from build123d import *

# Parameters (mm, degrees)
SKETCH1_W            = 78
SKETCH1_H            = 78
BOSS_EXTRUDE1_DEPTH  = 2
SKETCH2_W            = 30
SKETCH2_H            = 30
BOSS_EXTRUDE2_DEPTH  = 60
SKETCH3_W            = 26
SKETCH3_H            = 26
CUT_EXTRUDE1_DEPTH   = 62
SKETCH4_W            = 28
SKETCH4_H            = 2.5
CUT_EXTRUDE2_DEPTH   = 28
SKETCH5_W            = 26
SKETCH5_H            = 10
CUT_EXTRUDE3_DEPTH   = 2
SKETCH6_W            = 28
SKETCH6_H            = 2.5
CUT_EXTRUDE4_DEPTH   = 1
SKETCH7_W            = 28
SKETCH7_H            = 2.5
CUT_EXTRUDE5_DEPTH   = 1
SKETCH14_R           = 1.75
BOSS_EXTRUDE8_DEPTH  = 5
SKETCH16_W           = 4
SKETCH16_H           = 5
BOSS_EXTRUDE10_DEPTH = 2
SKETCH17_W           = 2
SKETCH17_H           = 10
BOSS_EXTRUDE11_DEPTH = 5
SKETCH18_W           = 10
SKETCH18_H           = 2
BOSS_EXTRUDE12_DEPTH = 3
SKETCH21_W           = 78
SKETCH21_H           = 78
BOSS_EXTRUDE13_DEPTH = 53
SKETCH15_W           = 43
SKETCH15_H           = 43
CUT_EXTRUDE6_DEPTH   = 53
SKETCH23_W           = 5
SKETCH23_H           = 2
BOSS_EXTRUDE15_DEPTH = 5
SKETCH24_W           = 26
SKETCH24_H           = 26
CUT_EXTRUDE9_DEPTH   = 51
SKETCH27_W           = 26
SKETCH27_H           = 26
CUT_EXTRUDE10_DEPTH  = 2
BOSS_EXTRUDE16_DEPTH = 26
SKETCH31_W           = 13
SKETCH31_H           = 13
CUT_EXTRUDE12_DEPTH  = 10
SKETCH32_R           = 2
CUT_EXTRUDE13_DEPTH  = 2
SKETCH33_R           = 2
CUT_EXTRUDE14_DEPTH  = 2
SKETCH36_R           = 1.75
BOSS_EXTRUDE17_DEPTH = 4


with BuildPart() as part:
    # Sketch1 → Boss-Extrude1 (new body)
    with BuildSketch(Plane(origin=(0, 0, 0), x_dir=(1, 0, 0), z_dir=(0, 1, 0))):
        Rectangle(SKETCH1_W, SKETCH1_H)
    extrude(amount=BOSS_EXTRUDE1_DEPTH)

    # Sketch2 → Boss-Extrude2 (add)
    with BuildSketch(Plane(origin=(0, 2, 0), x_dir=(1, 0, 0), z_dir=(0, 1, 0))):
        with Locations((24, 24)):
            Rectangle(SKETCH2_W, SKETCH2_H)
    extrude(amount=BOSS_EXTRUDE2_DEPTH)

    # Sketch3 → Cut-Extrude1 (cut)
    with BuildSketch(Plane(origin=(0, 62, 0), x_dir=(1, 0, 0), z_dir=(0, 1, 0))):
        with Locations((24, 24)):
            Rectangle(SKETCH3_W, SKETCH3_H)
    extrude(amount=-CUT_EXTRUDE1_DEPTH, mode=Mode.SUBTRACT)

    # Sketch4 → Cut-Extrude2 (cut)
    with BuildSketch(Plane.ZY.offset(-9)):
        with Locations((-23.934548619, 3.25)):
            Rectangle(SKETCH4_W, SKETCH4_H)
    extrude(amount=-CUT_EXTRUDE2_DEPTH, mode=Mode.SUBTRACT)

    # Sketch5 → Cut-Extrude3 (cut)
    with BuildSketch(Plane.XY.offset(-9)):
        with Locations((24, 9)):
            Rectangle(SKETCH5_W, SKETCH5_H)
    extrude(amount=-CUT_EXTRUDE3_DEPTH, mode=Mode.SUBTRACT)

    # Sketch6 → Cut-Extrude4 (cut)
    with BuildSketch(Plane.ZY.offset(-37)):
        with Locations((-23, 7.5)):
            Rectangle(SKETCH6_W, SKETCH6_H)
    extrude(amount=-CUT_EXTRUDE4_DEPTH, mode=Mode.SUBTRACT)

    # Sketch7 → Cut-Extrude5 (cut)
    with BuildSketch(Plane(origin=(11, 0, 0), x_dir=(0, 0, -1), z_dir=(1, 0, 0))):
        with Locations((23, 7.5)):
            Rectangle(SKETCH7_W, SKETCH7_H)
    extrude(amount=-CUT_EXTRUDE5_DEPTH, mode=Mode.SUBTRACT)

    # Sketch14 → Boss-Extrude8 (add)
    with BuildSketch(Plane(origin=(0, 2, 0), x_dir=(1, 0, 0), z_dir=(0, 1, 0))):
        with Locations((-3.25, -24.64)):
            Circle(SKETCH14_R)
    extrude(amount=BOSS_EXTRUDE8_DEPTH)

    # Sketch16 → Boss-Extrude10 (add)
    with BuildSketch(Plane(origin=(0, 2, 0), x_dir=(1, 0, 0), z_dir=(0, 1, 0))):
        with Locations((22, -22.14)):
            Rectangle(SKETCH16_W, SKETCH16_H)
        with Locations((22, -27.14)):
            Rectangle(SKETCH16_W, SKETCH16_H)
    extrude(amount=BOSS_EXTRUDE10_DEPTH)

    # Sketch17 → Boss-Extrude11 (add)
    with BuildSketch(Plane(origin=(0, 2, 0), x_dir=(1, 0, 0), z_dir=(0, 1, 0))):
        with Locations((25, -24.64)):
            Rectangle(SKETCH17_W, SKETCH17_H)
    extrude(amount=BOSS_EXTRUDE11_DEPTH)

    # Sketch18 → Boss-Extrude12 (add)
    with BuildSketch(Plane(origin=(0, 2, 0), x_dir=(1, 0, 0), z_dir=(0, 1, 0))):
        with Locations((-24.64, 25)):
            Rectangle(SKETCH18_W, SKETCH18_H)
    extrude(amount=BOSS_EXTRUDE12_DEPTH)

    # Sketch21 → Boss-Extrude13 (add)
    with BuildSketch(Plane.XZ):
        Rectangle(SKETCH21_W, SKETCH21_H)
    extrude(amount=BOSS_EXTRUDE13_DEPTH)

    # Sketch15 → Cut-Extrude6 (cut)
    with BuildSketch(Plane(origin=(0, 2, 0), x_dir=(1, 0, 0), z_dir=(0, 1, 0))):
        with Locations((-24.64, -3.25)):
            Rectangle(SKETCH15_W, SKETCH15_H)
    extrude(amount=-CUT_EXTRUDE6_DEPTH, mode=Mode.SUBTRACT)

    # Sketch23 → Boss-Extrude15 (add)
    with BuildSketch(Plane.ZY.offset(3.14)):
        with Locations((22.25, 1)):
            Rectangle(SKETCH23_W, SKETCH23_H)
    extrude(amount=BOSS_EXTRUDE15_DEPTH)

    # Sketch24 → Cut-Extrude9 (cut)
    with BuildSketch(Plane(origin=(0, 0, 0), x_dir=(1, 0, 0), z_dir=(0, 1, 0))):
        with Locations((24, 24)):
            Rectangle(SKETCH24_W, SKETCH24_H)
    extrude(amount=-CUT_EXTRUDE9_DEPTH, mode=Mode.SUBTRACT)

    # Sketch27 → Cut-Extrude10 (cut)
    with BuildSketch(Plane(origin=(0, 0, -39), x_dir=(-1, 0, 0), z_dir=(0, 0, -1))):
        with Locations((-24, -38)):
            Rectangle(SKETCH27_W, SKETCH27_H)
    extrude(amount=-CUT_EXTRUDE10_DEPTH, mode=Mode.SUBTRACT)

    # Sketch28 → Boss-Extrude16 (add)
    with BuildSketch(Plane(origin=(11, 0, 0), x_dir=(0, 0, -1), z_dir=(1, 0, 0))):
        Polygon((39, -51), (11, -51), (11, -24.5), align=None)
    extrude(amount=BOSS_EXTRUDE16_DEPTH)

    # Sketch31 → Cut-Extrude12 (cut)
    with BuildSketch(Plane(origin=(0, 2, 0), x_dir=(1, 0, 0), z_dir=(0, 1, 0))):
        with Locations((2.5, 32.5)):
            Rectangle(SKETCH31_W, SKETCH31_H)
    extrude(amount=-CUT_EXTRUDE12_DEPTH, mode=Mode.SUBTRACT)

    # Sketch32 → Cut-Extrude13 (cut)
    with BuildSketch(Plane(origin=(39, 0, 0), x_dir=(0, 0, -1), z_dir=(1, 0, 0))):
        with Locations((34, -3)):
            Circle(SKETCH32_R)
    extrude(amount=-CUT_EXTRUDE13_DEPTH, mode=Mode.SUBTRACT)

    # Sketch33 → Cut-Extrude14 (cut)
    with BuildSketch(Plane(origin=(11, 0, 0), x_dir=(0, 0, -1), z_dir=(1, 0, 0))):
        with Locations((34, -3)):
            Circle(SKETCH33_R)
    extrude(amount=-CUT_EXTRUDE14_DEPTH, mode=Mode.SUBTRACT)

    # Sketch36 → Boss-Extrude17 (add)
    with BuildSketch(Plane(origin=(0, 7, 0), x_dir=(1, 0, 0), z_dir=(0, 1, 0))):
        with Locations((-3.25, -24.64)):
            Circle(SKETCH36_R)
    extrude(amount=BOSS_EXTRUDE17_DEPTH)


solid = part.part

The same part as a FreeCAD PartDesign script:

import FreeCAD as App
import Part
import Sketcher
Q = App.Units.Quantity


def add_polygon(sketch, points):
    """Adds a closed chain of lines whose ends are joined by coincident constraints."""
    first, n = sketch.GeometryCount, len(points)
    for a, b in zip(points, points[1:] + points[:1]):
        sketch.addGeometry(Part.LineSegment(App.Vector(*a, 0), App.Vector(*b, 0)), False)
    for i in range(n):
        sketch.addConstraint(Sketcher.Constraint("Coincident", first + i, 2, first + (i + 1) % n, 1))

doc = App.newDocument("Part")
body = doc.addObject("PartDesign::Body", "Body")

# Sketch on XZ plane
sketch1 = body.newObject("Sketcher::SketchObject", "Sketch")
sketch1.AttachmentSupport = (doc.getObject("XZ_Plane"), [""])
sketch1.MapMode = "FlatFace"
add_polygon(sketch1, [(-39, -39), (-39, 39), (39, 39), (39, -39)])  # lines 0-3
sketch1.addConstraint([
    Sketcher.Constraint("Vertical", 0),
    Sketcher.Constraint("Horizontal", 1),
    Sketcher.Constraint("Vertical", 2),
    Sketcher.Constraint("Horizontal", 3),
    Sketcher.Constraint("Symmetric", 0, 2, 2, 2, -1, 1),
    Sketcher.Constraint("Equal", 3, 0),
    Sketcher.Constraint("DistanceX", 1, 1, 1, 2, Q("78 mm")),
])
pad1 = body.newObject("PartDesign::Pad", "Pad")
pad1.Profile = sketch1
pad1.Length = 2
pad1.Reversed = True

# Sketch on XZ plane
sketch2 = body.newObject("Sketcher::SketchObject", "Sketch001")
sketch2.AttachmentSupport = (doc.getObject("XZ_Plane"), [""])
sketch2.MapMode = "FlatFace"
sketch2.AttachmentOffset = App.Placement(App.Vector(0, 0, -2), App.Rotation())
add_polygon(sketch2, [(9, -39), (9, -9), (39, -9), (39, -39)])  # lines 0-3
sketch2.addConstraint([
    Sketcher.Constraint("Vertical", 0),
    Sketcher.Constraint("Horizontal", 1),
    Sketcher.Constraint("Vertical", 2),
    Sketcher.Constraint("Horizontal", 3),
    Sketcher.Constraint("Equal", 3, 0),
    Sketcher.Constraint("DistanceX", 1, 1, 1, 2, Q("30 mm")),
    Sketcher.Constraint("DistanceX", -1, 1, 0, 2, Q("9 mm")),
    Sketcher.Constraint("DistanceY", 0, 2, -1, 1, Q("9 mm")),
])
pad2 = body.newObject("PartDesign::Pad", "Pad001")
pad2.Profile = sketch2
pad2.Length = 60
pad2.Reversed = True

# Sketch on XZ plane
sketch3 = body.newObject("Sketcher::SketchObject", "Sketch002")
sketch3.AttachmentSupport = (doc.getObject("XZ_Plane"), [""])
sketch3.MapMode = "FlatFace"
sketch3.AttachmentOffset = App.Placement(App.Vector(0, 0, -62), App.Rotation())
add_polygon(sketch3, [(11, -37), (11, -11), (37, -11), (37, -37)])  # lines 0-3
sketch3.addConstraint([
    Sketcher.Constraint("Vertical", 0),
    Sketcher.Constraint("Horizontal", 1),
    Sketcher.Constraint("Vertical", 2),
    Sketcher.Constraint("Horizontal", 3),
    Sketcher.Constraint("Equal", 3, 0),
    Sketcher.Constraint("DistanceX", 1, 1, 1, 2, Q("26 mm")),
    Sketcher.Constraint("DistanceX", -1, 1, 0, 2, Q("11 mm")),
    Sketcher.Constraint("DistanceY", 0, 2, -1, 1, Q("11 mm")),
])
pocket1 = body.newObject("PartDesign::Pocket", "Pocket")
pocket1.Profile = sketch3
pocket1.Length = 62
pocket1.Reversed = True

# Sketch on YZ plane
sketch4 = body.newObject("Sketcher::SketchObject", "Sketch003")
sketch4.AttachmentSupport = (doc.getObject("YZ_Plane"), [""])
sketch4.MapMode = "FlatFace"
sketch4.AttachmentOffset = App.Placement(App.Vector(0, 0, 9), App.Rotation())
add_polygon(sketch4, [(4.5, -37.934549), (2, -37.934549), (2, -9.934549), (4.5, -9.934549)])  # lines 0-3
sketch4.addConstraint([
    Sketcher.Constraint("Horizontal", 0),
    Sketcher.Constraint("Vertical", 1),
    Sketcher.Constraint("Horizontal", 2),
    Sketcher.Constraint("Vertical", 3),
    Sketcher.Constraint("DistanceY", 1, 1, 1, 2, Q("28 mm")),
    Sketcher.Constraint("DistanceX", 0, 2, 0, 1, Q("2.5 mm")),
    Sketcher.Constraint("DistanceX", -1, 1, 0, 2, Q("2 mm")),
    Sketcher.Constraint("DistanceY", 0, 2, -1, 1, Q("37.934549 mm")),
])
pocket2 = body.newObject("PartDesign::Pocket", "Pocket001")
pocket2.Profile = sketch4
pocket2.Length = 28
pocket2.Reversed = True

# Sketch on XY plane
sketch5 = body.newObject("Sketcher::SketchObject", "Sketch004")
sketch5.AttachmentSupport = (doc.getObject("XY_Plane"), [""])
sketch5.MapMode = "FlatFace"
sketch5.AttachmentOffset = App.Placement(App.Vector(0, 0, -9), App.Rotation())
add_polygon(sketch5, [(11, 14), (11, 4), (37, 4), (37, 14)])  # lines 0-3
sketch5.addConstraint([
    Sketcher.Constraint("Vertical", 0),
    Sketcher.Constraint("Horizontal", 1),
    Sketcher.Constraint("Vertical", 2),
    Sketcher.Constraint("Horizontal", 3),
    Sketcher.Constraint("DistanceX", 1, 1, 1, 2, Q("26 mm")),
    Sketcher.Constraint("DistanceY", 0, 2, 0, 1, Q("10 mm")),
    Sketcher.Constraint("DistanceX", -1, 1, 0, 2, Q("11 mm")),
    Sketcher.Constraint("DistanceY", -1, 1, 0, 2, Q("4 mm")),
])
pocket3 = body.newObject("PartDesign::Pocket", "Pocket002")
pocket3.Profile = sketch5
pocket3.Length = 2

# Sketch on YZ plane
sketch6 = body.newObject("Sketcher::SketchObject", "Sketch005")
sketch6.AttachmentSupport = (doc.getObject("YZ_Plane"), [""])
sketch6.MapMode = "FlatFace"
sketch6.AttachmentOffset = App.Placement(App.Vector(0, 0, 37), App.Rotation())
add_polygon(sketch6, [(8.75, -37), (6.25, -37), (6.25, -9), (8.75, -9)])  # lines 0-3
sketch6.addConstraint([
    Sketcher.Constraint("Horizontal", 0),
    Sketcher.Constraint("Vertical", 1),
    Sketcher.Constraint("Horizontal", 2),
    Sketcher.Constraint("Vertical", 3),
    Sketcher.Constraint("DistanceY", 1, 1, 1, 2, Q("28 mm")),
    Sketcher.Constraint("DistanceX", 0, 2, 0, 1, Q("2.5 mm")),
    Sketcher.Constraint("DistanceY", 0, 2, -1, 1, Q("37 mm")),
    Sketcher.Constraint("DistanceX", -1, 1, 0, 2, Q("6.25 mm")),
])
pocket4 = body.newObject("PartDesign::Pocket", "Pocket003")
pocket4.Profile = sketch6
pocket4.Length = 1
pocket4.Reversed = True

# Sketch on YZ plane
sketch7 = body.newObject("Sketcher::SketchObject", "Sketch006")
sketch7.AttachmentSupport = (doc.getObject("YZ_Plane"), [""])
sketch7.MapMode = "FlatFace"
sketch7.AttachmentOffset = App.Placement(App.Vector(0, 0, 11), App.Rotation())
add_polygon(sketch7, [(8.75, -9), (6.25, -9), (6.25, -37), (8.75, -37)])  # lines 0-3
sketch7.addConstraint([
    Sketcher.Constraint("Horizontal", 0),
    Sketcher.Constraint("Vertical", 1),
    Sketcher.Constraint("Horizontal", 2),
    Sketcher.Constraint("Vertical", 3),
    Sketcher.Constraint("DistanceY", 1, 2, 1, 1, Q("28 mm")),
    Sketcher.Constraint("DistanceX", 0, 2, 0, 1, Q("2.5 mm")),
    Sketcher.Constraint("DistanceY", 0, 2, -1, 1, Q("9 mm")),
    Sketcher.Constraint("DistanceX", -1, 1, 0, 2, Q("6.25 mm")),
])
pocket5 = body.newObject("PartDesign::Pocket", "Pocket004")
pocket5.Profile = sketch7
pocket5.Length = 1

# Sketch on XZ plane
sketch8 = body.newObject("Sketcher::SketchObject", "Sketch007")
sketch8.AttachmentSupport = (doc.getObject("XZ_Plane"), [""])
sketch8.MapMode = "FlatFace"
sketch8.AttachmentOffset = App.Placement(App.Vector(0, 0, -2), App.Rotation())
sketch8.addGeometry(Part.Circle(App.Vector(-3.25, 24.64, 0), App.Vector(0, 0, 1), 1.75), False)
sketch8.addConstraint([
    Sketcher.Constraint("Diameter", 0, Q("3.5 mm")),
    Sketcher.Constraint("DistanceX", 0, 3, -1, 1, Q("3.25 mm")),
    Sketcher.Constraint("DistanceY", -1, 1, 0, 3, Q("24.64 mm")),
])
pad3 = body.newObject("PartDesign::Pad", "Pad002")
pad3.Profile = sketch8
pad3.Length = 5
pad3.Reversed = True

# Sketch on XZ plane
sketch9 = body.newObject("Sketcher::SketchObject", "Sketch008")
sketch9.AttachmentSupport = (doc.getObject("XZ_Plane"), [""])
sketch9.MapMode = "FlatFace"
sketch9.AttachmentOffset = App.Placement(App.Vector(0, 0, -2), App.Rotation())
add_polygon(sketch9, [(20, 19.64), (20, 29.64), (24, 29.64), (24, 19.64)])  # lines 0-3
sketch9.addConstraint([
    Sketcher.Constraint("Vertical", 0),
    Sketcher.Constraint("Horizontal", 1),
    Sketcher.Constraint("Vertical", 2),
    Sketcher.Constraint("Horizontal", 3),
    Sketcher.Constraint("DistanceX", 1, 1, 1, 2, Q("4 mm")),
    Sketcher.Constraint("DistanceY", 0, 1, 0, 2, Q("10 mm")),
    Sketcher.Constraint("DistanceX", -1, 1, 0, 2, Q("20 mm")),
    Sketcher.Constraint("DistanceY", -1, 1, 0, 2, Q("29.64 mm")),
])
pad4 = body.newObject("PartDesign::Pad", "Pad003")
pad4.Profile = sketch9
pad4.Length = 2
pad4.Reversed = True

# Sketch on XZ plane
sketch10 = body.newObject("Sketcher::SketchObject", "Sketch009")
sketch10.AttachmentSupport = (doc.getObject("XZ_Plane"), [""])
sketch10.MapMode = "FlatFace"
sketch10.AttachmentOffset = App.Placement(App.Vector(0, 0, -2), App.Rotation())
add_polygon(sketch10, [(24, 19.64), (24, 29.64), (26, 29.64), (26, 19.64)])  # lines 0-3
sketch10.addConstraint([
    Sketcher.Constraint("Vertical", 0),
    Sketcher.Constraint("Horizontal", 1),
    Sketcher.Constraint("Vertical", 2),
    Sketcher.Constraint("Horizontal", 3),
    Sketcher.Constraint("DistanceX", 1, 1, 1, 2, Q("2 mm")),
    Sketcher.Constraint("DistanceY", 0, 1, 0, 2, Q("10 mm")),
    Sketcher.Constraint("DistanceX", -1, 1, 0, 2, Q("24 mm")),
    Sketcher.Constraint("DistanceY", -1, 1, 0, 2, Q("29.64 mm")),
])
pad5 = body.newObject("PartDesign::Pad", "Pad004")
pad5.Profile = sketch10
pad5.Length = 5
pad5.Reversed = True

# Sketch on XZ plane
sketch11 = body.newObject("Sketcher::SketchObject", "Sketch010")
sketch11.AttachmentSupport = (doc.getObject("XZ_Plane"), [""])
sketch11.MapMode = "FlatFace"
sketch11.AttachmentOffset = App.Placement(App.Vector(0, 0, -2), App.Rotation())
add_polygon(sketch11, [(-29.64, -26), (-29.64, -24), (-19.64, -24), (-19.64, -26)])  # lines 0-3
sketch11.addConstraint([
    Sketcher.Constraint("Vertical", 0),
    Sketcher.Constraint("Horizontal", 1),
    Sketcher.Constraint("Vertical", 2),
    Sketcher.Constraint("Horizontal", 3),
    Sketcher.Constraint("DistanceX", 1, 1, 1, 2, Q("10 mm")),
    Sketcher.Constraint("DistanceY", 0, 1, 0, 2, Q("2 mm")),
    Sketcher.Constraint("DistanceY", 0, 2, -1, 1, Q("24 mm")),
    Sketcher.Constraint("DistanceX", 0, 2, -1, 1, Q("29.64 mm")),
])
pad6 = body.newObject("PartDesign::Pad", "Pad005")
pad6.Profile = sketch11
pad6.Length = 3
pad6.Reversed = True

# Sketch on XZ plane
sketch12 = body.newObject("Sketcher::SketchObject", "Sketch011")
sketch12.AttachmentSupport = (doc.getObject("XZ_Plane"), [""])
sketch12.MapMode = "FlatFace"
add_polygon(sketch12, [(-39, 39), (-39, -39), (39, -39), (39, 39)])  # lines 0-3
sketch12.addConstraint([
    Sketcher.Constraint("Vertical", 0),
    Sketcher.Constraint("Horizontal", 1),
    Sketcher.Constraint("Vertical", 2),
    Sketcher.Constraint("Horizontal", 3),
    Sketcher.Constraint("Symmetric", 0, 2, 2, 2, -1, 1),
    Sketcher.Constraint("Equal", 3, 0),
    Sketcher.Constraint("DistanceX", 1, 1, 1, 2, Q("78 mm")),
])
pad7 = body.newObject("PartDesign::Pad", "Pad006")
pad7.Profile = sketch12
pad7.Length = 53

# Sketch on XZ plane
sketch13 = body.newObject("Sketcher::SketchObject", "Sketch012")
sketch13.AttachmentSupport = (doc.getObject("XZ_Plane"), [""])
sketch13.MapMode = "FlatFace"
sketch13.AttachmentOffset = App.Placement(App.Vector(0, 0, -2), App.Rotation())
add_polygon(sketch13, [(-46.14, -18.25), (-46.14, 24.75), (-3.14, 24.75), (-3.14, -18.25)])  # lines 0-3
sketch13.addConstraint([
    Sketcher.Constraint("Vertical", 0),
    Sketcher.Constraint("Horizontal", 1),
    Sketcher.Constraint("Vertical", 2),
    Sketcher.Constraint("Horizontal", 3),
    Sketcher.Constraint("Equal", 3, 0),
    Sketcher.Constraint("DistanceX", 1, 1, 1, 2, Q("43 mm")),
    Sketcher.Constraint("DistanceX", 0, 2, -1, 1, Q("46.14 mm")),
    Sketcher.Constraint("DistanceY", -1, 1, 0, 2, Q("24.75 mm")),
])
pocket6 = body.newObject("PartDesign::Pocket", "Pocket005")
pocket6.Profile = sketch13
pocket6.Length = 53
pocket6.Reversed = True

# Sketch on YZ plane
sketch14 = body.newObject("Sketcher::SketchObject", "Sketch013")
sketch14.AttachmentSupport = (doc.getObject("YZ_Plane"), [""])
sketch14.MapMode = "FlatFace"
sketch14.AttachmentOffset = App.Placement(App.Vector(0, 0, -3.14), App.Rotation())
add_polygon(sketch14, [(2, 19.75), (0, 19.75), (0, 24.75), (2, 24.75)])  # lines 0-3
sketch14.addConstraint([
    Sketcher.Constraint("Horizontal", 0),
    Sketcher.Constraint("Vertical", 1),
    Sketcher.Constraint("Horizontal", 2),
    Sketcher.Constraint("Vertical", 3),
    Sketcher.Constraint("PointOnObject", 0, 2, -2),
    Sketcher.Constraint("DistanceX", 0, 2, 0, 1, Q("2 mm")),
    Sketcher.Constraint("DistanceY", 1, 1, 1, 2, Q("5 mm")),
    Sketcher.Constraint("DistanceY", -1, 1, 0, 2, Q("19.75 mm")),
])
pad8 = body.newObject("PartDesign::Pad", "Pad007")
pad8.Profile = sketch14
pad8.Length = 5
pad8.Reversed = True

# Sketch on XZ plane
sketch15 = body.newObject("Sketcher::SketchObject", "Sketch014")
sketch15.AttachmentSupport = (doc.getObject("XZ_Plane"), [""])
sketch15.MapMode = "FlatFace"
add_polygon(sketch15, [(11, -37), (11, -11), (37, -11), (37, -37)])  # lines 0-3
sketch15.addConstraint([
    Sketcher.Constraint("Vertical", 0),
    Sketcher.Constraint("Horizontal", 1),
    Sketcher.Constraint("Vertical", 2),
    Sketcher.Constraint("Horizontal", 3),
    Sketcher.Constraint("Equal", 3, 0),
    Sketcher.Constraint("DistanceX", 1, 1, 1, 2, Q("26 mm")),
    Sketcher.Constraint("DistanceX", -1, 1, 0, 2, Q("11 mm")),
    Sketcher.Constraint("DistanceY", 0, 2, -1, 1, Q("11 mm")),
])
pocket7 = body.newObject("PartDesign::Pocket", "Pocket006")
pocket7.Profile = sketch15
pocket7.Length = 51
pocket7.Reversed = True

# Sketch on XY plane
sketch16 = body.newObject("Sketcher::SketchObject", "Sketch015")
sketch16.AttachmentSupport = (doc.getObject("XY_Plane"), [""])
sketch16.MapMode = "FlatFace"
sketch16.AttachmentOffset = App.Placement(App.Vector(0, 0, -39), App.Rotation())
add_polygon(sketch16, [(37, -25), (37, -51), (11, -51), (11, -25)])  # lines 0-3
sketch16.addConstraint([
    Sketcher.Constraint("Vertical", 0),
    Sketcher.Constraint("Horizontal", 1),
    Sketcher.Constraint("Vertical", 2),
    Sketcher.Constraint("Horizontal", 3),
    Sketcher.Constraint("Equal", 3, 0),
    Sketcher.Constraint("DistanceX", 1, 2, 1, 1, Q("26 mm")),
    Sketcher.Constraint("DistanceX", -1, 1, 0, 2, Q("37 mm")),
    Sketcher.Constraint("DistanceY", 0, 2, -1, 1, Q("51 mm")),
])
pocket8 = body.newObject("PartDesign::Pocket", "Pocket007")
pocket8.Profile = sketch16
pocket8.Length = 2
pocket8.Reversed = True

# Sketch on YZ plane
sketch17 = body.newObject("Sketcher::SketchObject", "Sketch016")
sketch17.AttachmentSupport = (doc.getObject("YZ_Plane"), [""])
sketch17.MapMode = "FlatFace"
sketch17.AttachmentOffset = App.Placement(App.Vector(0, 0, 11), App.Rotation())
add_polygon(sketch17, [(-51, -11), (-51, -39), (-24.5, -11)])  # lines 0-2
sketch17.addConstraint([
    Sketcher.Constraint("Vertical", 0),
    Sketcher.Constraint("Horizontal", 2),
    Sketcher.Constraint("DistanceY", 0, 2, 0, 1, Q("28 mm")),
    Sketcher.Constraint("DistanceX", 2, 2, 2, 1, Q("26.5 mm")),
    Sketcher.Constraint("DistanceX", 0, 2, -1, 1, Q("51 mm")),
    Sketcher.Constraint("DistanceY", 0, 2, -1, 1, Q("39 mm")),
])
pad9 = body.newObject("PartDesign::Pad", "Pad008")
pad9.Profile = sketch17
pad9.Length = 26

# Sketch on XZ plane
sketch18 = body.newObject("Sketcher::SketchObject", "Sketch017")
sketch18.AttachmentSupport = (doc.getObject("XZ_Plane"), [""])
sketch18.MapMode = "FlatFace"
sketch18.AttachmentOffset = App.Placement(App.Vector(0, 0, -2), App.Rotation())
add_polygon(sketch18, [(-4, -39), (-4, -26), (9, -26), (9, -39)])  # lines 0-3
sketch18.addConstraint([
    Sketcher.Constraint("Vertical", 0),
    Sketcher.Constraint("Horizontal", 1),
    Sketcher.Constraint("Vertical", 2),
    Sketcher.Constraint("Horizontal", 3),
    Sketcher.Constraint("Equal", 3, 0),
    Sketcher.Constraint("DistanceX", 1, 1, 1, 2, Q("13 mm")),
    Sketcher.Constraint("DistanceX", 0, 2, -1, 1, Q("4 mm")),
    Sketcher.Constraint("DistanceY", 0, 2, -1, 1, Q("26 mm")),
])
pocket9 = body.newObject("PartDesign::Pocket", "Pocket008")
pocket9.Profile = sketch18
pocket9.Length = 10
pocket9.Reversed = True

# Sketch on YZ plane
sketch19 = body.newObject("Sketcher::SketchObject", "Sketch018")
sketch19.AttachmentSupport = (doc.getObject("YZ_Plane"), [""])
sketch19.MapMode = "FlatFace"
sketch19.AttachmentOffset = App.Placement(App.Vector(0, 0, 39), App.Rotation())
sketch19.addGeometry(Part.Circle(App.Vector(-3, -34, 0), App.Vector(0, 0, 1), 2), False)
sketch19.addConstraint([
    Sketcher.Constraint("Diameter", 0, Q("4 mm")),
    Sketcher.Constraint("DistanceX", 0, 3, -1, 1, Q("3 mm")),
    Sketcher.Constraint("DistanceY", 0, 3, -1, 1, Q("34 mm")),
])
pocket10 = body.newObject("PartDesign::Pocket", "Pocket009")
pocket10.Profile = sketch19
pocket10.Length = 2

# Sketch on YZ plane
sketch20 = body.newObject("Sketcher::SketchObject", "Sketch019")
sketch20.AttachmentSupport = (doc.getObject("YZ_Plane"), [""])
sketch20.MapMode = "FlatFace"
sketch20.AttachmentOffset = App.Placement(App.Vector(0, 0, 11), App.Rotation())
sketch20.addGeometry(Part.Circle(App.Vector(-3, -34, 0), App.Vector(0, 0, 1), 2), False)
sketch20.addConstraint([
    Sketcher.Constraint("Diameter", 0, Q("4 mm")),
    Sketcher.Constraint("DistanceX", 0, 3, -1, 1, Q("3 mm")),
    Sketcher.Constraint("DistanceY", 0, 3, -1, 1, Q("34 mm")),
])
pocket11 = body.newObject("PartDesign::Pocket", "Pocket010")
pocket11.Profile = sketch20
pocket11.Length = 2

# Sketch on XZ plane
sketch21 = body.newObject("Sketcher::SketchObject", "Sketch020")
sketch21.AttachmentSupport = (doc.getObject("XZ_Plane"), [""])
sketch21.MapMode = "FlatFace"
sketch21.AttachmentOffset = App.Placement(App.Vector(0, 0, -7), App.Rotation())
sketch21.addGeometry(Part.Circle(App.Vector(-3.25, 24.64, 0), App.Vector(0, 0, 1), 1.75), False)
sketch21.addConstraint([
    Sketcher.Constraint("Diameter", 0, Q("3.5 mm")),
    Sketcher.Constraint("DistanceX", 0, 3, -1, 1, Q("3.25 mm")),
    Sketcher.Constraint("DistanceY", -1, 1, 0, 3, Q("24.64 mm")),
])
pad10 = body.newObject("PartDesign::Pad", "Pad009")
pad10.Profile = sketch21
pad10.Length = 4
pad10.Reversed = True

doc.recompute()
